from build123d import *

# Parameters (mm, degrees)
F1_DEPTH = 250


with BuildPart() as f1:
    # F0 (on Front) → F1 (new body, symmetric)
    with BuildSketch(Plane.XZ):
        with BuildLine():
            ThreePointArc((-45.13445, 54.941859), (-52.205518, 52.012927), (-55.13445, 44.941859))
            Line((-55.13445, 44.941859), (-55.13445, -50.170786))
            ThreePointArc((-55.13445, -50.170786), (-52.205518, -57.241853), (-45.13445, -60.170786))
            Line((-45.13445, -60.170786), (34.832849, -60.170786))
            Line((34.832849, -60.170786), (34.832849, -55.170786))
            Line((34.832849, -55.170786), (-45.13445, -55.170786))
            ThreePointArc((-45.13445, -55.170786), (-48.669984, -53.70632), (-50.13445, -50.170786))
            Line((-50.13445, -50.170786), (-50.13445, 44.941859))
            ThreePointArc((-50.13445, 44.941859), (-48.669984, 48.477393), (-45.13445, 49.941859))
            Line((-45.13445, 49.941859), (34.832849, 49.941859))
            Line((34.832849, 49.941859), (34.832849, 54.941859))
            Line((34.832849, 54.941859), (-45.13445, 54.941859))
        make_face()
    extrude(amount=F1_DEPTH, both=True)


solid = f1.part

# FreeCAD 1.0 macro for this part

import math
import FreeCAD as App
import Part
import Sketcher

doc = App.newDocument("Part")
body = doc.addObject("PartDesign::Body", "Body")

sketch1 = doc.addObject("Sketcher::SketchObject", "Sketch")
body.addObject(sketch1)
sketch1.AttachmentSupport = (doc.XZ_Plane, [""])
sketch1.MapMode = "FlatFace"
sketch1.addGeometry([
    Part.ArcOfCircle(Part.Circle(App.Vector(-45.134451, 44.94186, 0), App.Vector(0, 0, 1), 9.999999), math.radians(89.999996), math.radians(180.000004)),
    Part.LineSegment(App.Vector(-55.13445, 44.941859, 0), App.Vector(-55.13445, -50.170786, 0)),
    Part.ArcOfCircle(Part.Circle(App.Vector(-45.134449, -50.170785, 0), App.Vector(0, 0, 1), 10.000001), math.radians(-179.999994), math.radians(-90.000006)),
    Part.LineSegment(App.Vector(-45.13445, -60.170786, 0), App.Vector(34.832849, -60.170786, 0)),
    Part.LineSegment(App.Vector(34.832849, -60.170786, 0), App.Vector(34.832849, -55.170786, 0)),
    Part.LineSegment(App.Vector(34.832849, -55.170786, 0), App.Vector(-45.13445, -55.170786, 0)),
    Part.ArcOfCircle(Part.Circle(App.Vector(-45.13445, -50.170786, 0), App.Vector(0, 0, 1), 5), math.radians(179.999996), math.radians(270.000004)),
    Part.LineSegment(App.Vector(-50.13445, -50.170786, 0), App.Vector(-50.13445, 44.941859, 0)),
    Part.ArcOfCircle(Part.Circle(App.Vector(-45.13445, 44.941859, 0), App.Vector(0, 0, 1), 5), math.radians(89.999996), math.radians(180.000004)),
    Part.LineSegment(App.Vector(-45.13445, 49.941859, 0), App.Vector(34.832849, 49.941859, 0)),
    Part.LineSegment(App.Vector(34.832849, 49.941859, 0), App.Vector(34.832849, 54.941859, 0)),
    Part.LineSegment(App.Vector(34.832849, 54.941859, 0), App.Vector(-45.13445, 54.941859, 0)),
], False)
sketch1.addConstraint([
    Sketcher.Constraint("Tangent", 0, 2, 1, 1),
    Sketcher.Constraint("Tangent", 1, 2, 2, 1),
    Sketcher.Constraint("Tangent", 2, 2, 3, 1),
    Sketcher.Constraint("Coincident", 3, 2, 4, 1),
    Sketcher.Constraint("Coincident", 4, 2, 5, 1),
    Sketcher.Constraint("Tangent", 5, 2, 6, 2),
    Sketcher.Constraint("Tangent", 6, 1, 7, 1),
    Sketcher.Constraint("Tangent", 7, 2, 8, 2),
    Sketcher.Constraint("Tangent", 8, 1, 9, 1),
    Sketcher.Constraint("Coincident", 9, 2, 10, 1),
    Sketcher.Constraint("Coincident", 10, 2, 11, 1),
    Sketcher.Constraint("Tangent", 11, 2, 0, 1),
    Sketcher.Constraint("Vertical", 1),
    Sketcher.Constraint("Horizontal", 3),
    Sketcher.Constraint("Vertical", 4),
    Sketcher.Constraint("Horizontal", 5),
    Sketcher.Constraint("Vertical", 7),
    Sketcher.Constraint("Horizontal", 9),
    Sketcher.Constraint("Vertical", 10),
    Sketcher.Constraint("Horizontal", 11),
    Sketcher.Constraint("Coincident", 6, 3, 2, 3),
    Sketcher.Constraint("Coincident", 8, 3, 0, 3),
    Sketcher.Constraint("Equal", 0, 2),
    Sketcher.Constraint("Vertical", 4, 2, 9, 2),
    Sketcher.Constraint("Radius", 0, 9.999999),
    Sketcher.Constraint("Radius", 6, 5.0),
    Sketcher.Constraint("DistanceX", 3, 1, 3, 2, 79.967299),
    Sketcher.Constraint("DistanceY", 1, 2, 1, 1, 95.112645),
    Sketcher.Constraint("DistanceX", 0, 3, -1, 1, 45.134451),
    Sketcher.Constraint("DistanceY", -1, 1, 0, 3, 44.94186),
])
pad1 = doc.addObject("PartDesign::Pad", "Pad")
body.addObject(pad1)
pad1.Profile = sketch1
pad1.Length = 500
pad1.Midplane = True

doc.recompute()
